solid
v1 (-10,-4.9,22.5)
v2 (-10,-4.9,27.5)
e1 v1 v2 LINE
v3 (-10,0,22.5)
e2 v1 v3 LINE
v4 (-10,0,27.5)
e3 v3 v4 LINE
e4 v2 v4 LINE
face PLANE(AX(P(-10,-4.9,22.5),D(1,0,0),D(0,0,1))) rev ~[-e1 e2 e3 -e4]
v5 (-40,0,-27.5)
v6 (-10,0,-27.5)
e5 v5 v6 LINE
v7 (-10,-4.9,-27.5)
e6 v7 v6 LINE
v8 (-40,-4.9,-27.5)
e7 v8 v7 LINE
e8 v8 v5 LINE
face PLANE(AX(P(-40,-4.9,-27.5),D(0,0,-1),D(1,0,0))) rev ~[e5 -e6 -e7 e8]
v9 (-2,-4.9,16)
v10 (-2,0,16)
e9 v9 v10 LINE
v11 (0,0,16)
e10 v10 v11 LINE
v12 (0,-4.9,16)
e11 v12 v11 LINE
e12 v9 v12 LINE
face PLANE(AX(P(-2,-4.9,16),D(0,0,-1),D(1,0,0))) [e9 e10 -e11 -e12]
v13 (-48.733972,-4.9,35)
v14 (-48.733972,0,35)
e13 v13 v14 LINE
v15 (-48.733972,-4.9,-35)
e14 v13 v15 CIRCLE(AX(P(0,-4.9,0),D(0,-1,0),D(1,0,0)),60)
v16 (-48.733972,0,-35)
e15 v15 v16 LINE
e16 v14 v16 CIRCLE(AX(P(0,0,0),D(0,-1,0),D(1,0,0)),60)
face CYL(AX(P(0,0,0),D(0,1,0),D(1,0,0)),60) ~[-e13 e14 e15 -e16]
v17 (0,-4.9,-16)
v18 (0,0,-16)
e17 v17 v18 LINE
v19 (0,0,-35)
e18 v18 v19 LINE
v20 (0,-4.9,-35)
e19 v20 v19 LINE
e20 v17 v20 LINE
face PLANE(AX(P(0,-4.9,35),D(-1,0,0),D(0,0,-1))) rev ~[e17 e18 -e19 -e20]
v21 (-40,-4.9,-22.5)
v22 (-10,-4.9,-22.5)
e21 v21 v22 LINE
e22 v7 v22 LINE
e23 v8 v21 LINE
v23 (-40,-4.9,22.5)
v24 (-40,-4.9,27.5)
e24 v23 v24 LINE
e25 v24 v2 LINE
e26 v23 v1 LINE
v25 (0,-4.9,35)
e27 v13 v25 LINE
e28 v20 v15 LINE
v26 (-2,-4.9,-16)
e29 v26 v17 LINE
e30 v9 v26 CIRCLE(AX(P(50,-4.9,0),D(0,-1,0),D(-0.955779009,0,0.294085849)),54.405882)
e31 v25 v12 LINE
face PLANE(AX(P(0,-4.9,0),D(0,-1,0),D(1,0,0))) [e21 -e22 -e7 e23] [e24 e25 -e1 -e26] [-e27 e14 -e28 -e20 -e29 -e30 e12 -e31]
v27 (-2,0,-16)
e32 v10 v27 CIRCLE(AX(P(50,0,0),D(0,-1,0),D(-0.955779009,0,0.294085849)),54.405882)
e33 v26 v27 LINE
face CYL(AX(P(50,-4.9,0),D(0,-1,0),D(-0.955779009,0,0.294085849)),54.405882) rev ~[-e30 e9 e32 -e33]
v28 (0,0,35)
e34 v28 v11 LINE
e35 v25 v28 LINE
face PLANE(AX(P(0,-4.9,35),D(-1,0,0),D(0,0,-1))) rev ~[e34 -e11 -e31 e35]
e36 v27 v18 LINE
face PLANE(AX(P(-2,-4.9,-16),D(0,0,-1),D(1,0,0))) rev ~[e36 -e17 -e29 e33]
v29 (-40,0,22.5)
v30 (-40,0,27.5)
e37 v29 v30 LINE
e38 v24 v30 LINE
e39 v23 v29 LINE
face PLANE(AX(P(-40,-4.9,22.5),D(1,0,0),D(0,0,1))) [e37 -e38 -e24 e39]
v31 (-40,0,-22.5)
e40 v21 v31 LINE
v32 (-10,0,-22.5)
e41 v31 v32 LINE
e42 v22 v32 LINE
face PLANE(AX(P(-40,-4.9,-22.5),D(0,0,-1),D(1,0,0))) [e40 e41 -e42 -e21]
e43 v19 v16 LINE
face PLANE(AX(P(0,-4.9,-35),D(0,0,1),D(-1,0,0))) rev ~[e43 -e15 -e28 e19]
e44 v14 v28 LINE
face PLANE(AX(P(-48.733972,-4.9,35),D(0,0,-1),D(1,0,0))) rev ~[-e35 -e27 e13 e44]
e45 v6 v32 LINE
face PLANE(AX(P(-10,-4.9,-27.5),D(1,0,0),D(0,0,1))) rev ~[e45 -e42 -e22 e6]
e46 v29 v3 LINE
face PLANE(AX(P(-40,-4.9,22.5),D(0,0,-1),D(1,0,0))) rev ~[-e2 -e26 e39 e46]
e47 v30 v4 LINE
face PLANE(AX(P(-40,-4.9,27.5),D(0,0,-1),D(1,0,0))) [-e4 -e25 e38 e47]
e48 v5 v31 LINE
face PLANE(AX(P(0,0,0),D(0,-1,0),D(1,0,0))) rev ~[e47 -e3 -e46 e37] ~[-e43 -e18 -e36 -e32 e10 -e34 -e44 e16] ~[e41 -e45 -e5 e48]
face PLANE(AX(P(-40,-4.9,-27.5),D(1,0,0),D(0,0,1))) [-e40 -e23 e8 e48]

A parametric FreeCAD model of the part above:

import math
import FreeCAD as App
import Part
import Sketcher


def add_polygon(sketch, points):
    """Adds a closed chain of lines whose ends are joined by coincident constraints."""
    first, n = sketch.GeometryCount, len(points)
    for a, b in zip(points, points[1:] + points[:1]):
        sketch.addGeometry(Part.LineSegment(App.Vector(*a, 0), App.Vector(*b, 0)), False)
    for i in range(n):
        sketch.addConstraint(Sketcher.Constraint("Coincident", first + i, 2, first + (i + 1) % n, 1))

doc = App.newDocument("Part")
params = doc.addObject("Spreadsheet::Sheet", "Params")
for row, (alias, value) in enumerate([
    ("sketch1_diameter", "120 mm"),
    ("pad1_length", "4.9 mm"),
    ("sketch2_radius", "60 mm"),
    ("sketch2_height", "70 mm"),
    ("sketch3_width", "2 mm"),
    ("sketch3_height", "32 mm"),
    ("sketch4_width", "30 mm"),
    ("sketch4_height", "5 mm"),
], start=1):
    params.set(f"A{row}", alias)
    params.set(f"B{row}", "=" + value)
    params.setAlias(f"B{row}", alias)

body = doc.addObject("PartDesign::Body", "Body")

sketch1 = body.newObject("Sketcher::SketchObject", "Sketch")
sketch1.AttachmentSupport = (doc.getObject("XZ_Plane"), [""])
sketch1.MapMode = "FlatFace"
sketch1.addGeometry(Part.Circle(App.Vector(0, 0, 0), App.Vector(0, 0, 1), 60), False)
sketch1.addConstraint([
    Sketcher.Constraint("Coincident", 0, 3, -1, 1),
    Sketcher.Constraint("Diameter", 0, 120.0),
])
sketch1.setExpression("Constraints[1]", "Params.sketch1_diameter")
pad1 = body.newObject("PartDesign::Pad", "Pad")
pad1.Profile = sketch1
pad1.setExpression("Length", "Params.pad1_length")

sketch2 = body.newObject("Sketcher::SketchObject", "Sketch001")
sketch2.AttachmentSupport = (doc.getObject("XZ_Plane"), [""])
sketch2.MapMode = "FlatFace"
sketch2.AttachmentOffset = App.Placement(App.Vector(0, 0, 4.9), App.Rotation())
sketch2.addGeometry([
    Part.LineSegment(App.Vector(-49, 35, 0), App.Vector(0, 35, 0)),
    Part.LineSegment(App.Vector(0, 35, 0), App.Vector(0, -35, 0)),
    Part.LineSegment(App.Vector(0, -35, 0), App.Vector(-49, -35, 0)),
    Part.ArcOfCircle(Part.Circle(App.Vector(0, 0, 0), App.Vector(0, 0, 1), 60), math.radians(-144), math.radians(144)),
], False)
sketch2.addConstraint([
    Sketcher.Constraint("Coincident", 0, 2, 1, 1),
    Sketcher.Constraint("Coincident", 1, 2, 2, 1),
    Sketcher.Constraint("Coincident", 2, 2, 3, 1),
    Sketcher.Constraint("Coincident", 3, 2, 0, 1),
    Sketcher.Constraint("Horizontal", 0),
    Sketcher.Constraint("Vertical", 1),
    Sketcher.Constraint("Horizontal", 2),
    Sketcher.Constraint("Coincident", 3, 3, -1, 1),
    Sketcher.Constraint("Symmetric", 0, 2, 1, 2, -1, 1),
    Sketcher.Constraint("Radius", 3, 60.0),
    Sketcher.Constraint("DistanceY", 1, 2, 1, 1, 70.0),
])
sketch2.setExpression("Constraints[9]", "Params.sketch2_radius")
sketch2.setExpression("Constraints[10]", "Params.sketch2_height")
pocket1 = body.newObject("PartDesign::Pocket", "Pocket")
pocket1.Profile = sketch2
pocket1.Type = "ThroughAll"

sketch3 = body.newObject("Sketcher::SketchObject", "Sketch002")
sketch3.AttachmentSupport = (doc.getObject("XZ_Plane"), [""])
sketch3.MapMode = "FlatFace"
sketch3.AttachmentOffset = App.Placement(App.Vector(0, 0, 4.9), App.Rotation())
sketch3.addGeometry([
    Part.ArcOfCircle(Part.Circle(App.Vector(50, 0, 0), App.Vector(0, 0, 1), 54.4), math.radians(163), math.radians(197)),
    Part.LineSegment(App.Vector(-2, -16, 0), App.Vector(0, -16, 0)),
    Part.LineSegment(App.Vector(0, -16, 0), App.Vector(0, 16, 0)),
    Part.LineSegment(App.Vector(0, 16, 0), App.Vector(-2, 16, 0)),
], False)
sketch3.addConstraint([
    Sketcher.Constraint("Coincident", 0, 2, 1, 1),
    Sketcher.Constraint("Coincident", 1, 2, 2, 1),
    Sketcher.Constraint("Coincident", 2, 2, 3, 1),
    Sketcher.Constraint("Coincident", 3, 2, 0, 1),
    Sketcher.Constraint("Horizontal", 1),
    Sketcher.Constraint("Vertical", 2),
    Sketcher.Constraint("Horizontal", 3),
    Sketcher.Constraint("Symmetric", 1, 2, 2, 2, -1, 1),
    Sketcher.Constraint("PointOnObject", 0, 3, -1),
    Sketcher.Constraint("DistanceX", 1, 1, 1, 2, 2.0),
    Sketcher.Constraint("DistanceY", 2, 1, 2, 2, 32.0),
    Sketcher.Constraint("DistanceX", -1, 1, 0, 3, 50.0),
])
sketch3.setExpression("Constraints[9]", "Params.sketch3_width")
sketch3.setExpression("Constraints[10]", "Params.sketch3_height")
pocket2 = body.newObject("PartDesign::Pocket", "Pocket001")
pocket2.Profile = sketch3
pocket2.Type = "ThroughAll"

sketch4 = body.newObject("Sketcher::SketchObject", "Sketch003")
sketch4.AttachmentSupport = (doc.getObject("XZ_Plane"), [""])
sketch4.MapMode = "FlatFace"
sketch4.AttachmentOffset = App.Placement(App.Vector(0, 0, 4.9), App.Rotation())
add_polygon(sketch4, [(-40, 28), (-40, 22), (-10, 22), (-10, 28)])
add_polygon(sketch4, [(-40, -22), (-40, -28), (-10, -28), (-10, -22)])
sketch4.addConstraint([
    Sketcher.Constraint("Vertical", 0),
    Sketcher.Constraint("Horizontal", 1),
    Sketcher.Constraint("Vertical", 2),
    Sketcher.Constraint("Horizontal", 3),
    Sketcher.Constraint("Vertical", 4),
    Sketcher.Constraint("Horizontal", 5),
    Sketcher.Constraint("Vertical", 6),
    Sketcher.Constraint("Horizontal", 7),
    Sketcher.Constraint("Symmetric", 3, 2, 4, 2, -1),
    Sketcher.Constraint("Symmetric", 1, 2, 6, 2, -1),
    Sketcher.Constraint("DistanceX", 1, 1, 1, 2, 30.0),
    Sketcher.Constraint("DistanceY", 0, 2, 0, 1, 5.0),
    Sketcher.Constraint("DistanceX", 0, 2, -1, 1, 40.0),
    Sketcher.Constraint("DistanceY", 4, 2, 0, 2, 50.0),
])
sketch4.setExpression("Constraints[18]", "Params.sketch4_width")
sketch4.setExpression("Constraints[19]", "Params.sketch4_height")
pocket3 = body.newObject("PartDesign::Pocket", "Pocket002")
pocket3.Profile = sketch4
pocket3.Type = "ThroughAll"

doc.recompute()
